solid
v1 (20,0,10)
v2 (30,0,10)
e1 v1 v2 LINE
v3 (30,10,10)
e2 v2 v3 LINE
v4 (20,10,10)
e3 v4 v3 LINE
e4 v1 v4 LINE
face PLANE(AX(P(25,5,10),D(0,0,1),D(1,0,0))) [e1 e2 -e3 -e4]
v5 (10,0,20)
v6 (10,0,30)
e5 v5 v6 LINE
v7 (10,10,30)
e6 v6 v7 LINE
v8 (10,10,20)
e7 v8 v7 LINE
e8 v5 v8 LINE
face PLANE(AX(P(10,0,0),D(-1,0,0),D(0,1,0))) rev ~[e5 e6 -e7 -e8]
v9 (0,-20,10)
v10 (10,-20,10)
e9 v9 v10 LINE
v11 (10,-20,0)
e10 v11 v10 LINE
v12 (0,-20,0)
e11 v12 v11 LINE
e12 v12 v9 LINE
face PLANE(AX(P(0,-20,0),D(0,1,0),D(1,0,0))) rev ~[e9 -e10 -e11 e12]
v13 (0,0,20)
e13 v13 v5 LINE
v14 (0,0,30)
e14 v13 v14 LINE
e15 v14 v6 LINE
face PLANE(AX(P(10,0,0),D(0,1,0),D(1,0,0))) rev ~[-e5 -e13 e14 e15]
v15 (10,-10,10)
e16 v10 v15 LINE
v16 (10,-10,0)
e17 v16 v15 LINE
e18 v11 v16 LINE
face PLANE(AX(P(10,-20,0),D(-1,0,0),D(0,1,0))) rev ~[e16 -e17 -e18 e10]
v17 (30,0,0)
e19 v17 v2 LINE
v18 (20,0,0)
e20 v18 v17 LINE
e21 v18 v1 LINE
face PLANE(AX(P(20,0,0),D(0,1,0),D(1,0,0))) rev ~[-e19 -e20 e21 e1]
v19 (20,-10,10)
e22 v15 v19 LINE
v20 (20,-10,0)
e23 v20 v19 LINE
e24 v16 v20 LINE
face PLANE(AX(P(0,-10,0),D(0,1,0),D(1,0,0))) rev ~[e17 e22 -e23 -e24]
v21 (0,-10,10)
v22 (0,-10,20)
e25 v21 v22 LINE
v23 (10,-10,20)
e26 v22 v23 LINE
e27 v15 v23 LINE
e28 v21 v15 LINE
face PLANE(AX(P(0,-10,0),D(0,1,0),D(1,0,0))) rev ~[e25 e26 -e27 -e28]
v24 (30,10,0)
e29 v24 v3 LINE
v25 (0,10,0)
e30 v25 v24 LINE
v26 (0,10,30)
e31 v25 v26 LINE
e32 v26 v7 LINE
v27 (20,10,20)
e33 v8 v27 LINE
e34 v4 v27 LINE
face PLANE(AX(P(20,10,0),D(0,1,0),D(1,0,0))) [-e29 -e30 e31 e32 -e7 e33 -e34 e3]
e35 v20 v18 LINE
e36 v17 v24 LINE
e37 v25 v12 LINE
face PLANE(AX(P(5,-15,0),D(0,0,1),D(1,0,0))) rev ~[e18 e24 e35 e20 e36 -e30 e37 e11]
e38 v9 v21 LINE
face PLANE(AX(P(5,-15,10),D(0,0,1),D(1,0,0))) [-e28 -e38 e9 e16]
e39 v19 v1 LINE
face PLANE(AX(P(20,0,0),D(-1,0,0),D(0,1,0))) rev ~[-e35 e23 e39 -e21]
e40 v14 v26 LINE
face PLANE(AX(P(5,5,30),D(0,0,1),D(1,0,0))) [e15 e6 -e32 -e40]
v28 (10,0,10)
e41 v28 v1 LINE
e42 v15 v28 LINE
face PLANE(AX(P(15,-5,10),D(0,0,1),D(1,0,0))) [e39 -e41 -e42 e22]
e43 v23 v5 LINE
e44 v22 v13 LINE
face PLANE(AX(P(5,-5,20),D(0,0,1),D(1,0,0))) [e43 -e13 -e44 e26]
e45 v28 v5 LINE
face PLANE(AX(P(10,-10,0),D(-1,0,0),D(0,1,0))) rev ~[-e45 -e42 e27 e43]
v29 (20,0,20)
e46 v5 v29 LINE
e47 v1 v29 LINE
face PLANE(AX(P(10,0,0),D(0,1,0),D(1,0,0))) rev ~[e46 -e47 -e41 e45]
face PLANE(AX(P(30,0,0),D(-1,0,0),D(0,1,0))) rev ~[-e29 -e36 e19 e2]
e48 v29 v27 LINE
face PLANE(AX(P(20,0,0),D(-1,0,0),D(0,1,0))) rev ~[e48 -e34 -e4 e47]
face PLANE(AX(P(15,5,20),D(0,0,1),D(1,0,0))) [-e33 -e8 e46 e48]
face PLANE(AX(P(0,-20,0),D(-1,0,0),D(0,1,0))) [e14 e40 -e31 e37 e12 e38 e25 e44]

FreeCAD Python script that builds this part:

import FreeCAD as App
import Part
import Sketcher
Q = App.Units.Quantity

doc = App.newDocument("Part")
params = doc.addObject("Spreadsheet::Sheet", "Params")
for row, (alias, value) in enumerate([
    ("sketch1_width", "10 mm"),
    ("pad1_length", "30 mm"),
    ("sketch2_width", "10 mm"),
    ("pad2_length", "20 mm"),
    ("sketch3_width", "10 mm"),
    ("pad3_length", "10 mm"),
    ("sketch4_width", "10 mm"),
    ("pad4_length", "20 mm"),
    ("sketch5_width", "10 mm"),
    ("pad5_length", "10 mm"),
    ("sketch6_width", "10 mm"),
    ("pad6_length", "10 mm"),
], start=1):
    params.set(f"A{row}", alias)
    params.set(f"B{row}", "=" + value)
    params.setAlias(f"B{row}", alias)

body = doc.addObject("PartDesign::Body", "Body")

# Sketch on XY plane
sketch1 = doc.addObject("Sketcher::SketchObject", "Sketch")
body.addObject(sketch1)
sketch1.AttachmentSupport = (doc.XY_Plane, [""])
sketch1.MapMode = "FlatFace"
sketch1.addGeometry([
    Part.LineSegment(App.Vector(0, 10, 0), App.Vector(0, 0, 0)),
    Part.LineSegment(App.Vector(0, 0, 0), App.Vector(10, 0, 0)),
    Part.LineSegment(App.Vector(10, 0, 0), App.Vector(10, 10, 0)),
    Part.LineSegment(App.Vector(10, 10, 0), App.Vector(0, 10, 0)),
], False)
sketch1.addConstraint([
    Sketcher.Constraint("Coincident", 0, 2, 1, 1),
    Sketcher.Constraint("Coincident", 1, 2, 2, 1),
    Sketcher.Constraint("Coincident", 2, 2, 3, 1),
    Sketcher.Constraint("Coincident", 3, 2, 0, 1),
    Sketcher.Constraint("Vertical", 0),
    Sketcher.Constraint("Horizontal", 1),
    Sketcher.Constraint("Vertical", 2),
    Sketcher.Constraint("Horizontal", 3),
    Sketcher.Constraint("Coincident", 0, 2, -1, 1),
    Sketcher.Constraint("Equal", 3, 0),
    Sketcher.Constraint("DistanceX", 1, 1, 1, 2, Q("10 mm")),
])
sketch1.setExpression("Constraints[10]", "Params.sketch1_width")
pad1 = doc.addObject("PartDesign::Pad", "Pad")
body.addObject(pad1)
pad1.Profile = sketch1
pad1.setExpression("Length", "Params.pad1_length")
body2 = doc.addObject("PartDesign::Body", "Body001")

# Sketch on XY plane
sketch2 = doc.addObject("Sketcher::SketchObject", "Sketch001")
body2.addObject(sketch2)
sketch2.AttachmentSupport = (doc.getObject("XY_Plane001"), [""])
sketch2.MapMode = "FlatFace"
sketch2.addGeometry([
    Part.LineSegment(App.Vector(10, 10, 0), App.Vector(10, 0, 0)),
    Part.LineSegment(App.Vector(10, 0, 0), App.Vector(20, 0, 0)),
    Part.LineSegment(App.Vector(20, 0, 0), App.Vector(20, 10, 0)),
    Part.LineSegment(App.Vector(20, 10, 0), App.Vector(10, 10, 0)),
], False)
sketch2.addConstraint([
    Sketcher.Constraint("Coincident", 0, 2, 1, 1),
    Sketcher.Constraint("Coincident", 1, 2, 2, 1),
    Sketcher.Constraint("Coincident", 2, 2, 3, 1),
    Sketcher.Constraint("Coincident", 3, 2, 0, 1),
    Sketcher.Constraint("Vertical", 0),
    Sketcher.Constraint("Horizontal", 1),
    Sketcher.Constraint("Vertical", 2),
    Sketcher.Constraint("Horizontal", 3),
    Sketcher.Constraint("PointOnObject", 0, 2, -1),
    Sketcher.Constraint("Equal", 3, 0),
    Sketcher.Constraint("DistanceX", 1, 1, 1, 2, Q("10 mm")),
    Sketcher.Constraint("DistanceX", -1, 1, 0, 2, Q("10 mm")),
])
sketch2.setExpression("Constraints[10]", "Params.sketch2_width")
pad2 = doc.addObject("PartDesign::Pad", "Pad001")
body2.addObject(pad2)
pad2.Profile = sketch2
pad2.setExpression("Length", "Params.pad2_length")
body3 = doc.addObject("PartDesign::Body", "Body002")

# Sketch on XY plane
sketch3 = doc.addObject("Sketcher::SketchObject", "Sketch002")
body3.addObject(sketch3)
sketch3.AttachmentSupport = (doc.getObject("XY_Plane002"), [""])
sketch3.MapMode = "FlatFace"
sketch3.addGeometry([
    Part.LineSegment(App.Vector(20, 10, 0), App.Vector(20, 0, 0)),
    Part.LineSegment(App.Vector(20, 0, 0), App.Vector(30, 0, 0)),
    Part.LineSegment(App.Vector(30, 0, 0), App.Vector(30, 10, 0)),
    Part.LineSegment(App.Vector(30, 10, 0), App.Vector(20, 10, 0)),
], False)
sketch3.addConstraint([
    Sketcher.Constraint("Coincident", 0, 2, 1, 1),
    Sketcher.Constraint("Coincident", 1, 2, 2, 1),
    Sketcher.Constraint("Coincident", 2, 2, 3, 1),
    Sketcher.Constraint("Coincident", 3, 2, 0, 1),
    Sketcher.Constraint("Vertical", 0),
    Sketcher.Constraint("Horizontal", 1),
    Sketcher.Constraint("Vertical", 2),
    Sketcher.Constraint("Horizontal", 3),
    Sketcher.Constraint("PointOnObject", 0, 2, -1),
    Sketcher.Constraint("Equal", 3, 0),
    Sketcher.Constraint("DistanceX", 1, 1, 1, 2, Q("10 mm")),
    Sketcher.Constraint("DistanceX", -1, 1, 0, 2, Q("20 mm")),
])
sketch3.setExpression("Constraints[10]", "Params.sketch3_width")
pad3 = doc.addObject("PartDesign::Pad", "Pad002")
body3.addObject(pad3)
pad3.Profile = sketch3
pad3.setExpression("Length", "Params.pad3_length")
body4 = doc.addObject("PartDesign::Body", "Body003")

# Sketch on XY plane
sketch4 = doc.addObject("Sketcher::SketchObject", "Sketch003")
body4.addObject(sketch4)
sketch4.AttachmentSupport = (doc.getObject("XY_Plane003"), [""])
sketch4.MapMode = "FlatFace"
sketch4.addGeometry([
    Part.LineSegment(App.Vector(0, 0, 0), App.Vector(0, -10, 0)),
    Part.LineSegment(App.Vector(0, -10, 0), App.Vector(10, -10, 0)),
    Part.LineSegment(App.Vector(10, -10, 0), App.Vector(10, 0, 0)),
    Part.LineSegment(App.Vector(10, 0, 0), App.Vector(0, 0, 0)),
], False)
sketch4.addConstraint([
    Sketcher.Constraint("Coincident", 0, 2, 1, 1),
    Sketcher.Constraint("Coincident", 1, 2, 2, 1),
    Sketcher.Constraint("Coincident", 2, 2, 3, 1),
    Sketcher.Constraint("Coincident", 3, 2, 0, 1),
    Sketcher.Constraint("Vertical", 0),
    Sketcher.Constraint("Horizontal", 1),
    Sketcher.Constraint("Vertical", 2),
    Sketcher.Constraint("Horizontal", 3),
    Sketcher.Constraint("Coincident", 3, 2, -1, 1),
    Sketcher.Constraint("Equal", 3, 0),
    Sketcher.Constraint("DistanceX", 1, 1, 1, 2, Q("10 mm")),
])
sketch4.setExpression("Constraints[10]", "Params.sketch4_width")
pad4 = doc.addObject("PartDesign::Pad", "Pad003")
body4.addObject(pad4)
pad4.Profile = sketch4
pad4.setExpression("Length", "Params.pad4_length")
body5 = doc.addObject("PartDesign::Body", "Body004")

# Sketch on XY plane
sketch5 = doc.addObject("Sketcher::SketchObject", "Sketch004")
body5.addObject(sketch5)
sketch5.AttachmentSupport = (doc.getObject("XY_Plane004"), [""])
sketch5.MapMode = "FlatFace"
sketch5.addGeometry([
    Part.LineSegment(App.Vector(0, -10, 0), App.Vector(0, -20, 0)),
    Part.LineSegment(App.Vector(0, -20, 0), App.Vector(10, -20, 0)),
    Part.LineSegment(App.Vector(10, -20, 0), App.Vector(10, -10, 0)),
    Part.LineSegment(App.Vector(10, -10, 0), App.Vector(0, -10, 0)),
], False)
sketch5.addConstraint([
    Sketcher.Constraint("Coincident", 0, 2, 1, 1),
    Sketcher.Constraint("Coincident", 1, 2, 2, 1),
    Sketcher.Constraint("Coincident", 2, 2, 3, 1),
    Sketcher.Constraint("Coincident", 3, 2, 0, 1),
    Sketcher.Constraint("Vertical", 0),
    Sketcher.Constraint("Horizontal", 1),
    Sketcher.Constraint("Vertical", 2),
    Sketcher.Constraint("Horizontal", 3),
    Sketcher.Constraint("PointOnObject", 0, 2, -2),
    Sketcher.Constraint("Equal", 3, 0),
    Sketcher.Constraint("DistanceX", 1, 1, 1, 2, Q("10 mm")),
    Sketcher.Constraint("DistanceY", 0, 2, -1, 1, Q("20 mm")),
])
sketch5.setExpression("Constraints[10]", "Params.sketch5_width")
pad5 = doc.addObject("PartDesign::Pad", "Pad004")
body5.addObject(pad5)
pad5.Profile = sketch5
pad5.setExpression("Length", "Params.pad5_length")
body6 = doc.addObject("PartDesign::Body", "Body005")
body6.AllowCompound = True

# Sketch on XY plane
sketch6 = doc.addObject("Sketcher::SketchObject", "Sketch005")
body6.addObject(sketch6)
sketch6.AttachmentSupport = (doc.getObject("XY_Plane005"), [""])
sketch6.MapMode = "FlatFace"
sketch6.addGeometry([
    Part.LineSegment(App.Vector(10, 0, 0), App.Vector(10, -10, 0)),
    Part.LineSegment(App.Vector(10, -10, 0), App.Vector(20, -10, 0)),
    Part.LineSegment(App.Vector(20, -10, 0), App.Vector(20, 0, 0)),
    Part.LineSegment(App.Vector(20, 0, 0), App.Vector(10, 0, 0)),
], False)
sketch6.addConstraint([
    Sketcher.Constraint("Coincident", 0, 2, 1, 1),
    Sketcher.Constraint("Coincident", 1, 2, 2, 1),
    Sketcher.Constraint("Coincident", 2, 2, 3, 1),
    Sketcher.Constraint("Coincident", 3, 2, 0, 1),
    Sketcher.Constraint("Vertical", 0),
    Sketcher.Constraint("Horizontal", 1),
    Sketcher.Constraint("Vertical", 2),
    Sketcher.Constraint("Horizontal", 3),
    Sketcher.Constraint("PointOnObject", 2, 2, -1),
    Sketcher.Constraint("Equal", 3, 0),
    Sketcher.Constraint("DistanceX", 1, 1, 1, 2, Q("10 mm")),
    Sketcher.Constraint("DistanceX", -1, 1, 0, 2, Q("10 mm")),
])
sketch6.setExpression("Constraints[10]", "Params.sketch6_width")
pad6 = doc.addObject("PartDesign::Pad", "Pad005")
body6.addObject(pad6)
pad6.Profile = sketch6
pad6.setExpression("Length", "Params.pad6_length")
doc.recompute()

boolean = doc.addObject("PartDesign::Boolean", "Boolean")
body6.addObject(boolean)
boolean.Type = "Fuse"
boolean.addObjects([body])
doc.recompute()

boolean2 = doc.addObject("PartDesign::Boolean", "Boolean001")
body6.addObject(boolean2)
boolean2.Type = "Fuse"
boolean2.addObjects([body2])
doc.recompute()

boolean3 = doc.addObject("PartDesign::Boolean", "Boolean002")
body6.addObject(boolean3)
boolean3.Type = "Fuse"
boolean3.addObjects([body3])
doc.recompute()

boolean4 = doc.addObject("PartDesign::Boolean", "Boolean003")
body6.addObject(boolean4)
boolean4.Type = "Fuse"
boolean4.addObjects([body4])
doc.recompute()

boolean5 = doc.addObject("PartDesign::Boolean", "Boolean004")
body6.addObject(boolean5)
boolean5.Type = "Fuse"
boolean5.addObjects([body5])

doc.recompute()
